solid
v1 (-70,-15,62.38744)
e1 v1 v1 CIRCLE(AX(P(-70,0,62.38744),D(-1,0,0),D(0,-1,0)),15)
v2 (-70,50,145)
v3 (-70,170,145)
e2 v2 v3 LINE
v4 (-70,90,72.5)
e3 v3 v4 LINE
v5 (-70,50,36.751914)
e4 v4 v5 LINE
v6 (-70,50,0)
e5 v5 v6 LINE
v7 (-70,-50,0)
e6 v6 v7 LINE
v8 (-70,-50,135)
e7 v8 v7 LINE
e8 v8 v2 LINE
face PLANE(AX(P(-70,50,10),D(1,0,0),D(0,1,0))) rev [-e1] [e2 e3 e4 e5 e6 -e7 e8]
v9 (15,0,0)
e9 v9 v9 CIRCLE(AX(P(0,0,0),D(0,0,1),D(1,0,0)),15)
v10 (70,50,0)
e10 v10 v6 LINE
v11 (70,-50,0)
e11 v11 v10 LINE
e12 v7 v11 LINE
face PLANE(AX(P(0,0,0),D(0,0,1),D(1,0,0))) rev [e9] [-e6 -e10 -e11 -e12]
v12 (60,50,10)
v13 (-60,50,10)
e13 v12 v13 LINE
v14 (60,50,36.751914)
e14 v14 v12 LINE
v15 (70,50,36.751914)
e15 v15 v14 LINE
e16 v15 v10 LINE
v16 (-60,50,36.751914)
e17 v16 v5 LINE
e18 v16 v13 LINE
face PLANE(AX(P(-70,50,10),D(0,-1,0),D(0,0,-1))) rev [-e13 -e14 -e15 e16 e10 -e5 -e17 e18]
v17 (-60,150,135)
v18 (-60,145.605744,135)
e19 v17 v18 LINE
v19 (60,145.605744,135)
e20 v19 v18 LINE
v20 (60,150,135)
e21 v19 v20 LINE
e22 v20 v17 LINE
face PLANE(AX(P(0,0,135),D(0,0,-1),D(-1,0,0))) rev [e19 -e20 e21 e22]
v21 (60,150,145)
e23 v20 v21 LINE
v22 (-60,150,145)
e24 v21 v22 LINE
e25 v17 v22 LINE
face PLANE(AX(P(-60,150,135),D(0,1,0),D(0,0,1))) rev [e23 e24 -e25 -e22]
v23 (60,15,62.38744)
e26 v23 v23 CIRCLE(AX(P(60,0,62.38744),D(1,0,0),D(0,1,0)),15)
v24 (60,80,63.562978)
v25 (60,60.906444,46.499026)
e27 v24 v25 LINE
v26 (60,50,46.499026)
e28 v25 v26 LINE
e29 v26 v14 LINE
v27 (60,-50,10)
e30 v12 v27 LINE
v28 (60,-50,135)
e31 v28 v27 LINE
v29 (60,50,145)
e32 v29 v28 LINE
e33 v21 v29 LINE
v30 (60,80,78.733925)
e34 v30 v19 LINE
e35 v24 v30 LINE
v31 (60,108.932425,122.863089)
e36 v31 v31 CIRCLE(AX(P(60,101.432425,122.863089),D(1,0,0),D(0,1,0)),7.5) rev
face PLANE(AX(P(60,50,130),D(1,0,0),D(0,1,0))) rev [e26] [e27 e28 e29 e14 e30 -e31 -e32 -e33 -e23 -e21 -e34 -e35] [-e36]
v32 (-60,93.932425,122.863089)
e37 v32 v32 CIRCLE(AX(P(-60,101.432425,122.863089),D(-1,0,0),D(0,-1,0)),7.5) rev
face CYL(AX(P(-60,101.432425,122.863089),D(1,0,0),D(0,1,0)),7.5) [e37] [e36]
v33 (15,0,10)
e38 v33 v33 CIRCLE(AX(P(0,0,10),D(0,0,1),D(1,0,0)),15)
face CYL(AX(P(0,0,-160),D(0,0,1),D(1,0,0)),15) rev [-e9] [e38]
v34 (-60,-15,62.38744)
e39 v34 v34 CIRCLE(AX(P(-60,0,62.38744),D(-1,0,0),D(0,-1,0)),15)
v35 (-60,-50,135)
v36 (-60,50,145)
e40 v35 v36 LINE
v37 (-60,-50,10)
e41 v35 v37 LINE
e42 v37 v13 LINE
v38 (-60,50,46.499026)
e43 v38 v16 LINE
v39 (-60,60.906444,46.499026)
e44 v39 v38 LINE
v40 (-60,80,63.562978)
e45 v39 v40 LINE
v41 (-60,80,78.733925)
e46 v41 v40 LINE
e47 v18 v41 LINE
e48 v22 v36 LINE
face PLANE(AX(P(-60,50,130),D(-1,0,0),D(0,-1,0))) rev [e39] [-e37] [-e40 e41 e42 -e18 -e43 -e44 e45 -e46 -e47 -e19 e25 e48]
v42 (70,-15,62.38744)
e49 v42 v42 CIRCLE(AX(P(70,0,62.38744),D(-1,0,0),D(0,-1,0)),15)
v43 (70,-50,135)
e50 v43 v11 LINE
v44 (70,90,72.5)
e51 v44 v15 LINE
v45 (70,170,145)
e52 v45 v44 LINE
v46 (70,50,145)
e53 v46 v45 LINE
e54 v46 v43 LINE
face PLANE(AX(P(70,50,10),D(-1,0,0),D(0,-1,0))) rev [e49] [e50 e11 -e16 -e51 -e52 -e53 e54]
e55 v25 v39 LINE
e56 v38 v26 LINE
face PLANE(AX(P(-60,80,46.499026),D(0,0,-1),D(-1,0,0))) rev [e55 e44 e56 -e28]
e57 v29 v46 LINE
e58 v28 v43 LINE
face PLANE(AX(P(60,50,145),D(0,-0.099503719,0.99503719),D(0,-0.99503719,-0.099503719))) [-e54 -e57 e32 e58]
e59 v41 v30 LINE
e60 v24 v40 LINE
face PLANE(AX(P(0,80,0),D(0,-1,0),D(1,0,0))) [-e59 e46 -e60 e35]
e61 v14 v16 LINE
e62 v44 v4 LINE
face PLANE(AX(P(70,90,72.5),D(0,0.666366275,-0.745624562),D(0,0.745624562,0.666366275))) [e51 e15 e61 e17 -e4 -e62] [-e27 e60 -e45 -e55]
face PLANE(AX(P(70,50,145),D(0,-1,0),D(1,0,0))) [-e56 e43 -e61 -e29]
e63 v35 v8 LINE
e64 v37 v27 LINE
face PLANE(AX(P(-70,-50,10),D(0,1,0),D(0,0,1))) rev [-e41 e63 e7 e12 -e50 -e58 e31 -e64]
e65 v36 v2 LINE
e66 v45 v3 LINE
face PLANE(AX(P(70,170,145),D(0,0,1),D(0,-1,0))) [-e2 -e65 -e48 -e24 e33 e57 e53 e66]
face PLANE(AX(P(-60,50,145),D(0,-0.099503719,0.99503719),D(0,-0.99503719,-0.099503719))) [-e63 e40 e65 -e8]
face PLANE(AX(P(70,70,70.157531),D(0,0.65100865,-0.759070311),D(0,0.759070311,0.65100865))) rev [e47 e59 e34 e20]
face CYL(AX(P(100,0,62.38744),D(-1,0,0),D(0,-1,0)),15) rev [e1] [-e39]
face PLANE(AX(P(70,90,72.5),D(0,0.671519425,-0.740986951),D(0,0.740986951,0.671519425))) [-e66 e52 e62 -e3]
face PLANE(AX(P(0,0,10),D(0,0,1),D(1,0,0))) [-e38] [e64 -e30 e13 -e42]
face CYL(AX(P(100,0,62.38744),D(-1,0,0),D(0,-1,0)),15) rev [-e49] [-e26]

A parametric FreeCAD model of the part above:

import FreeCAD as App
import Part
import Sketcher


def add_polygon(sketch, points):
    """Adds a closed chain of lines whose ends are joined by coincident constraints."""
    first, n = sketch.GeometryCount, len(points)
    for a, b in zip(points, points[1:] + points[:1]):
        sketch.addGeometry(Part.LineSegment(App.Vector(*a, 0), App.Vector(*b, 0)), False)
    for i in range(n):
        sketch.addConstraint(Sketcher.Constraint("Coincident", first + i, 2, first + (i + 1) % n, 1))

doc = App.newDocument("Part")
params = doc.addObject("Spreadsheet::Sheet", "Params")
for row, (alias, value) in enumerate([
    ("sketch1_width", "140 mm"),
    ("sketch1_height", "100 mm"),
    ("pad1_length", "10 mm"),
    ("sketch2_width", "10 mm"),
    ("sketch2_height", "100 mm"),
    ("pad2_length", "120 mm"),
    ("sketch3_width", "100 mm"),
    ("sketch3_height", "15 mm"),
    ("sketch3_height2", "5 mm"),
    ("pad3_length", "10 mm"),
    ("sketch4_width", "100 mm"),
    ("sketch4_height", "15 mm"),
    ("sketch4_height2", "5 mm"),
    ("pad4_length", "10 mm"),
    ("sketch5_width", "120 mm"),
    ("pad5_length", "140 mm"),
    ("sketch6_width", "120 mm"),
    ("pocket1_length", "30 mm"),
    ("sketch7_diameter", "30 mm"),
    ("pocket2_length", "170 mm"),
    ("sketch8_diameter", "30 mm"),
    ("pocket3_length", "170 mm"),
    ("pocket4_length", "140 mm"),
    ("sketch10_width", "120 mm"),
    ("sketch10_height", "70 mm"),
    ("pocket5_length", "10 mm"),
    ("pad6_length", "10 mm"),
    ("pad7_length", "10 mm"),
    ("sketch13_diameter", "15 mm"),
    ("pad8_length", "120 mm"),
], start=1):
    params.set(f"A{row}", alias)
    params.set(f"B{row}", "=" + value)
    params.setAlias(f"B{row}", alias)

body = doc.addObject("PartDesign::Body", "Body")

sketch1 = body.newObject("Sketcher::SketchObject", "Sketch")
sketch1.AttachmentSupport = (doc.getObject("XY_Plane"), [""])
sketch1.MapMode = "FlatFace"
add_polygon(sketch1, [(-70, 50), (-70, -50), (70, -50), (70, 50)])
sketch1.addConstraint([
    Sketcher.Constraint("Vertical", 0),
    Sketcher.Constraint("Horizontal", 1),
    Sketcher.Constraint("Vertical", 2),
    Sketcher.Constraint("Horizontal", 3),
    Sketcher.Constraint("Symmetric", 0, 2, 2, 2, -1, 1),
    Sketcher.Constraint("DistanceX", 1, 1, 1, 2, 140.0),
    Sketcher.Constraint("DistanceY", 0, 2, 0, 1, 100.0),
])
sketch1.setExpression("Constraints[9]", "Params.sketch1_width")
sketch1.setExpression("Constraints[10]", "Params.sketch1_height")
pad1 = body.newObject("PartDesign::Pad", "Pad")
pad1.Profile = sketch1
pad1.setExpression("Length", "Params.pad1_length")

sketch2 = body.newObject("Sketcher::SketchObject", "Sketch001")
sketch2.AttachmentSupport = (doc.getObject("XY_Plane"), [""])
sketch2.MapMode = "FlatFace"
sketch2.AttachmentOffset = App.Placement(App.Vector(0, 0, 10), App.Rotation())
add_polygon(sketch2, [(60, 50), (60, -50), (70, -50), (70, 50)])
add_polygon(sketch2, [(-70, 50), (-70, -50), (-60, -50), (-60, 50)])
sketch2.addConstraint([
    Sketcher.Constraint("Vertical", 0),
    Sketcher.Constraint("Horizontal", 1),
    Sketcher.Constraint("Vertical", 2),
    Sketcher.Constraint("Horizontal", 3),
    Sketcher.Constraint("Vertical", 4),
    Sketcher.Constraint("Horizontal", 5),
    Sketcher.Constraint("Vertical", 6),
    Sketcher.Constraint("Horizontal", 7),
    Sketcher.Constraint("Symmetric", 2, 2, 4, 2, -1, 1),
    Sketcher.Constraint("Symmetric", 0, 2, 6, 2, -1, 1),
    Sketcher.Constraint("Horizontal", 1, 2, 4, 2),
    Sketcher.Constraint("DistanceX", 1, 1, 1, 2, 10.0),
    Sketcher.Constraint("DistanceY", 0, 2, 0, 1, 100.0),
    Sketcher.Constraint("DistanceX", -1, 1, 0, 2, 60.0),
])
sketch2.setExpression("Constraints[19]", "Params.sketch2_width")
sketch2.setExpression("Constraints[20]", "Params.sketch2_height")
pad2 = body.newObject("PartDesign::Pad", "Pad001")
pad2.Profile = sketch2
pad2.setExpression("Length", "Params.pad2_length")

sketch3 = body.newObject("Sketcher::SketchObject", "Sketch002")
sketch3.AttachmentSupport = (doc.getObject("YZ_Plane"), [""])
sketch3.MapMode = "FlatFace"
sketch3.AttachmentOffset = App.Placement(App.Vector(0, 0, -70), App.Rotation())
add_polygon(sketch3, [(50, 145), (50, 130), (-50, 130), (-50, 135)])
sketch3.addConstraint([
    Sketcher.Constraint("Vertical", 0),
    Sketcher.Constraint("Horizontal", 1),
    Sketcher.Constraint("Vertical", 2),
    Sketcher.Constraint("DistanceX", 1, 2, 1, 1, 100.0),
    Sketcher.Constraint("DistanceY", 0, 2, 0, 1, 15.0),
    Sketcher.Constraint("DistanceY", 2, 1, 2, 2, 5.0),
    Sketcher.Constraint("DistanceX", -1, 1, 0, 2, 50.0),
    Sketcher.Constraint("DistanceY", -1, 1, 0, 2, 130.0),
])
sketch3.setExpression("Constraints[7]", "Params.sketch3_width")
sketch3.setExpression("Constraints[8]", "Params.sketch3_height")
sketch3.setExpression("Constraints[9]", "Params.sketch3_height2")
pad3 = body.newObject("PartDesign::Pad", "Pad002")
pad3.Profile = sketch3
pad3.setExpression("Length", "Params.pad3_length")

sketch4 = body.newObject("Sketcher::SketchObject", "Sketch003")
sketch4.AttachmentSupport = (doc.getObject("YZ_Plane"), [""])
sketch4.MapMode = "FlatFace"
sketch4.AttachmentOffset = App.Placement(App.Vector(0, 0, 70), App.Rotation())
add_polygon(sketch4, [(50, 130), (50, 145), (-50, 135), (-50, 130)])
sketch4.addConstraint([
    Sketcher.Constraint("Vertical", 0),
    Sketcher.Constraint("Vertical", 2),
    Sketcher.Constraint("Horizontal", 3),
    Sketcher.Constraint("DistanceX", 3, 1, 3, 2, 100.0),
    Sketcher.Constraint("DistanceY", 0, 1, 0, 2, 15.0),
    Sketcher.Constraint("DistanceY", 2, 2, 2, 1, 5.0),
    Sketcher.Constraint("DistanceX", -1, 1, 0, 2, 50.0),
    Sketcher.Constraint("DistanceY", -1, 1, 0, 2, 145.0),
])
sketch4.setExpression("Constraints[7]", "Params.sketch4_width")
sketch4.setExpression("Constraints[8]", "Params.sketch4_height")
sketch4.setExpression("Constraints[9]", "Params.sketch4_height2")
pad4 = body.newObject("PartDesign::Pad", "Pad003")
pad4.Profile = sketch4
pad4.setExpression("Length", "Params.pad4_length")
pad4.Reversed = True

sketch5 = body.newObject("Sketcher::SketchObject", "Sketch004")
sketch5.AttachmentSupport = (doc.getObject("YZ_Plane"), [""])
sketch5.MapMode = "FlatFace"
sketch5.AttachmentOffset = App.Placement(App.Vector(0, 0, -70), App.Rotation())
add_polygon(sketch5, [(170, 145), (90, 72), (50, 37), (50, 145)])
sketch5.addConstraint([
    Sketcher.Constraint("Vertical", 2),
    Sketcher.Constraint("Horizontal", 3),
    Sketcher.Constraint("DistanceX", 3, 1, 3, 2, 120.0),
    Sketcher.Constraint("DistanceX", -1, 1, 0, 2, 90.0),
    Sketcher.Constraint("DistanceX", -1, 1, 1, 2, 50.0),
    Sketcher.Constraint("DistanceY", -1, 1, 2, 2, 145.0),
    Sketcher.Constraint("DistanceY", -1, 1, 0, 2, 72.5),
    Sketcher.Constraint("Distance", 1, 53.646301),
])
sketch5.setExpression("Constraints[6]", "Params.sketch5_width")
pad5 = body.newObject("PartDesign::Pad", "Pad004")
pad5.Profile = sketch5
pad5.setExpression("Length", "Params.pad5_length")

sketch6 = body.newObject("Sketcher::SketchObject", "Sketch005")
sketch6.AttachmentSupport = (doc.getObject("XZ_Plane"), [""])
sketch6.MapMode = "FlatFace"
sketch6.AttachmentOffset = App.Placement(App.Vector(0, 0, -50), App.Rotation())
add_polygon(sketch6, [(-60, 145), (-60, 46), (60, 46), (60, 145)])
sketch6.addConstraint([
    Sketcher.Constraint("Vertical", 0),
    Sketcher.Constraint("Horizontal", 1),
    Sketcher.Constraint("Vertical", 2),
    Sketcher.Constraint("Horizontal", 3),
    Sketcher.Constraint("DistanceX", 1, 1, 1, 2, 120.0),
    Sketcher.Constraint("DistanceX", 0, 2, -1, 1, 60.0),
    Sketcher.Constraint("DistanceY", -1, 1, 2, 2, 145.0),
    Sketcher.Constraint("DistanceY", 0, 2, 0, 1, 98.500974),
])
sketch6.setExpression("Constraints[8]", "Params.sketch6_width")
pocket1 = body.newObject("PartDesign::Pocket", "Pocket")
pocket1.Profile = sketch6
pocket1.setExpression("Length", "Params.pocket1_length")

sketch7 = body.newObject("Sketcher::SketchObject", "Sketch006")
sketch7.AttachmentSupport = (doc.getObject("YZ_Plane"), [""])
sketch7.MapMode = "FlatFace"
sketch7.AttachmentOffset = App.Placement(App.Vector(0, 0, -70), App.Rotation())
sketch7.addGeometry(Part.Circle(App.Vector(0, 62, 0), App.Vector(0, 0, 1), 15), False)
sketch7.addConstraint([
    Sketcher.Constraint("PointOnObject", 0, 3, -2),
    Sketcher.Constraint("Diameter", 0, 30.0),
    Sketcher.Constraint("DistanceY", -1, 1, 0, 3, 62.38744),
])
sketch7.setExpression("Constraints[1]", "Params.sketch7_diameter")
pocket2 = body.newObject("PartDesign::Pocket", "Pocket001")
pocket2.Profile = sketch7
pocket2.setExpression("Length", "Params.pocket2_length")
pocket2.Reversed = True

sketch8 = body.newObject("Sketcher::SketchObject", "Sketch007")
sketch8.AttachmentSupport = (doc.getObject("XY_Plane"), [""])
sketch8.MapMode = "FlatFace"
sketch8.AttachmentOffset = App.Placement(App.Vector(0, 0, 10), App.Rotation())
sketch8.addGeometry(Part.Circle(App.Vector(0, 0, 0), App.Vector(0, 0, 1), 15), False)
sketch8.addConstraint([
    Sketcher.Constraint("Coincident", 0, 3, -1, 1),
    Sketcher.Constraint("Diameter", 0, 30.0),
])
sketch8.setExpression("Constraints[1]", "Params.sketch8_diameter")
pocket3 = body.newObject("PartDesign::Pocket", "Pocket002")
pocket3.Profile = sketch8
pocket3.setExpression("Length", "Params.pocket3_length")

sketch9 = body.newObject("Sketcher::SketchObject", "Sketch008")
sketch9.AttachmentSupport = (doc.getObject("YZ_Plane"), [""])
sketch9.MapMode = "FlatFace"
sketch9.AttachmentOffset = App.Placement(App.Vector(0, 0, -70), App.Rotation())
add_polygon(sketch9, [(147, 136), (70, 70), (70, 136)])
sketch9.addConstraint([
    Sketcher.Constraint("Vertical", 1),
    Sketcher.Constraint("Horizontal", 2),
    Sketcher.Constraint("DistanceX", -1, 1, 0, 2, 70.0),
    Sketcher.Constraint("DistanceX", 2, 1, 2, 2, 76.817767),
    Sketcher.Constraint("DistanceY", 1, 1, 1, 2, 65.881948),
    Sketcher.Constraint("DistanceY", -1, 1, 0, 2, 70.157531),
])
pocket4 = body.newObject("PartDesign::Pocket", "Pocket003")
pocket4.Profile = sketch9
pocket4.setExpression("Length", "Params.pocket4_length")
pocket4.Reversed = True

sketch10 = body.newObject("Sketcher::SketchObject", "Sketch009")
sketch10.AttachmentSupport = (doc.getObject("XY_Plane"), [""])
sketch10.MapMode = "FlatFace"
sketch10.AttachmentOffset = App.Placement(App.Vector(0, 0, 145), App.Rotation())
add_polygon(sketch10, [(-60, 150), (-60, 80), (60, 80), (60, 150)])
sketch10.addConstraint([
    Sketcher.Constraint("Vertical", 0),
    Sketcher.Constraint("Horizontal", 1),
    Sketcher.Constraint("Vertical", 2),
    Sketcher.Constraint("Horizontal", 3),
    Sketcher.Constraint("DistanceX", 1, 1, 1, 2, 120.0),
    Sketcher.Constraint("DistanceY", 0, 2, 0, 1, 70.0),
    Sketcher.Constraint("DistanceX", 0, 2, -1, 1, 60.0),
    Sketcher.Constraint("DistanceY", -1, 1, 0, 2, 80.0),
])
sketch10.setExpression("Constraints[8]", "Params.sketch10_width")
sketch10.setExpression("Constraints[9]", "Params.sketch10_height")
pocket5 = body.newObject("PartDesign::Pocket", "Pocket004")
pocket5.Profile = sketch10
pocket5.setExpression("Length", "Params.pocket5_length")

sketch11 = body.newObject("Sketcher::SketchObject", "Sketch010")
sketch11.AttachmentSupport = (doc.getObject("YZ_Plane"), [""])
sketch11.MapMode = "FlatFace"
sketch11.AttachmentOffset = App.Placement(App.Vector(0, 0, -70), App.Rotation())
add_polygon(sketch11, [(70, 136), (147, 136), (70, 70)])
sketch11.addConstraint([
    Sketcher.Constraint("Horizontal", 0),
    Sketcher.Constraint("Vertical", 2),
    Sketcher.Constraint("DistanceX", -1, 1, 1, 2, 70.0),
    Sketcher.Constraint("DistanceX", 0, 1, 0, 2, 76.817767),
    Sketcher.Constraint("DistanceY", 2, 1, 2, 2, 65.881948),
    Sketcher.Constraint("DistanceY", -1, 1, 0, 2, 136.039479),
])
pad6 = body.newObject("PartDesign::Pad", "Pad005")
pad6.Profile = sketch11
pad6.setExpression("Length", "Params.pad6_length")

sketch12 = body.newObject("Sketcher::SketchObject", "Sketch011")
sketch12.AttachmentSupport = (doc.getObject("YZ_Plane"), [""])
sketch12.MapMode = "FlatFace"
sketch12.AttachmentOffset = App.Placement(App.Vector(0, 0, 70), App.Rotation())
add_polygon(sketch12, [(147, 136), (70, 136), (70, 70)])
sketch12.addConstraint([
    Sketcher.Constraint("Horizontal", 0),
    Sketcher.Constraint("Vertical", 1),
    Sketcher.Constraint("DistanceX", -1, 1, 0, 2, 70.0),
    Sketcher.Constraint("DistanceX", 0, 2, 0, 1, 76.817767),
    Sketcher.Constraint("DistanceY", 1, 2, 1, 1, 65.881948),
    Sketcher.Constraint("DistanceY", -1, 1, 0, 2, 136.039479),
])
pad7 = body.newObject("PartDesign::Pad", "Pad006")
pad7.Profile = sketch12
pad7.setExpression("Length", "Params.pad7_length")
pad7.Reversed = True

sketch13 = body.newObject("Sketcher::SketchObject", "Sketch012")
sketch13.AttachmentSupport = (doc.getObject("YZ_Plane"), [""])
sketch13.MapMode = "FlatFace"
sketch13.AttachmentOffset = App.Placement(App.Vector(0, 0, 60), App.Rotation())
sketch13.addGeometry(Part.Circle(App.Vector(101, 123, 0), App.Vector(0, 0, 1), 8), False)
sketch13.addConstraint([
    Sketcher.Constraint("Diameter", 0, 15.0),
    Sketcher.Constraint("DistanceY", -1, 1, 0, 3, 122.863089),
    Sketcher.Constraint("DistanceX", -1, 1, 0, 3, 101.432425),
])
sketch13.setExpression("Constraints[0]", "Params.sketch13_diameter")
pad8 = body.newObject("PartDesign::Pad", "Pad007")
pad8.Profile = sketch13
pad8.setExpression("Length", "Params.pad8_length")
pad8.Reversed = True

doc.recompute()
